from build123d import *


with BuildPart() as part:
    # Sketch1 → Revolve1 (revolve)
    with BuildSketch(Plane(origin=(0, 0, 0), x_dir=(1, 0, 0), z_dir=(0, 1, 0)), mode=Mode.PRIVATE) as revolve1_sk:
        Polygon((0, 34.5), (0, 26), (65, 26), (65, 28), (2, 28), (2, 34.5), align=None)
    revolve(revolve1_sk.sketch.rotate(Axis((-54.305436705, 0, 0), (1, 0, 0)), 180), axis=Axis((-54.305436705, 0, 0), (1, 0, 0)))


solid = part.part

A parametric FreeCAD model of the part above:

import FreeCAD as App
import Part
import Sketcher
from FreeCAD import Vector


def add_polygon(sketch, points):
    """Adds a closed chain of lines whose ends are joined by coincident constraints."""
    first, n = sketch.GeometryCount, len(points)
    for a, b in zip(points, points[1:] + points[:1]):
        sketch.addGeometry(Part.LineSegment(App.Vector(*a, 0), App.Vector(*b, 0)), False)
    for i in range(n):
        sketch.addConstraint(Sketcher.Constraint("Coincident", first + i, 2, first + (i + 1) % n, 1))

doc = App.newDocument("Part")
body = doc.addObject("PartDesign::Body", "Body")

# Sketch on XZ plane
sketch1 = body.newObject("Sketcher::SketchObject", "Sketch")
sketch1.AttachmentSupport = (doc.getObject("XZ_Plane"), [""])
sketch1.MapMode = "FlatFace"
add_polygon(sketch1, [(0, -34.5), (0, -26), (65, -26), (65, -28), (2, -28), (2, -34.5)])  # lines 0-5
sketch1.addConstraint(Sketcher.Constraint("Vertical", 0))
sketch1.addConstraint(Sketcher.Constraint("Horizontal", 1))
sketch1.addConstraint(Sketcher.Constraint("Vertical", 2))
sketch1.addConstraint(Sketcher.Constraint("Horizontal", 3))
sketch1.addConstraint(Sketcher.Constraint("Vertical", 4))
sketch1.addConstraint(Sketcher.Constraint("Horizontal", 5))
sketch1.addConstraint(Sketcher.Constraint("PointOnObject", 0, 2, -2))
sketch1.addConstraint(Sketcher.Constraint("Equal", 5, 2))
sketch1.addConstraint(Sketcher.Constraint("DistanceX", 1, 1, 1, 2, 65.0))
sketch1.addConstraint(Sketcher.Constraint("DistanceX", 3, 2, 3, 1, 63.0))
sketch1.addConstraint(Sketcher.Constraint("DistanceY", 0, 1, 0, 2, 8.5))
sketch1.addConstraint(Sketcher.Constraint("DistanceY", 0, 2, -1, 1, 26.0))
revolution = body.newObject("PartDesign::Revolution", "Revolution")
revolution.Profile = sketch1
revolution.ReferenceAxis = (sketch1, ["H_Axis"])
revolution.Angle = 360

doc.recompute()
